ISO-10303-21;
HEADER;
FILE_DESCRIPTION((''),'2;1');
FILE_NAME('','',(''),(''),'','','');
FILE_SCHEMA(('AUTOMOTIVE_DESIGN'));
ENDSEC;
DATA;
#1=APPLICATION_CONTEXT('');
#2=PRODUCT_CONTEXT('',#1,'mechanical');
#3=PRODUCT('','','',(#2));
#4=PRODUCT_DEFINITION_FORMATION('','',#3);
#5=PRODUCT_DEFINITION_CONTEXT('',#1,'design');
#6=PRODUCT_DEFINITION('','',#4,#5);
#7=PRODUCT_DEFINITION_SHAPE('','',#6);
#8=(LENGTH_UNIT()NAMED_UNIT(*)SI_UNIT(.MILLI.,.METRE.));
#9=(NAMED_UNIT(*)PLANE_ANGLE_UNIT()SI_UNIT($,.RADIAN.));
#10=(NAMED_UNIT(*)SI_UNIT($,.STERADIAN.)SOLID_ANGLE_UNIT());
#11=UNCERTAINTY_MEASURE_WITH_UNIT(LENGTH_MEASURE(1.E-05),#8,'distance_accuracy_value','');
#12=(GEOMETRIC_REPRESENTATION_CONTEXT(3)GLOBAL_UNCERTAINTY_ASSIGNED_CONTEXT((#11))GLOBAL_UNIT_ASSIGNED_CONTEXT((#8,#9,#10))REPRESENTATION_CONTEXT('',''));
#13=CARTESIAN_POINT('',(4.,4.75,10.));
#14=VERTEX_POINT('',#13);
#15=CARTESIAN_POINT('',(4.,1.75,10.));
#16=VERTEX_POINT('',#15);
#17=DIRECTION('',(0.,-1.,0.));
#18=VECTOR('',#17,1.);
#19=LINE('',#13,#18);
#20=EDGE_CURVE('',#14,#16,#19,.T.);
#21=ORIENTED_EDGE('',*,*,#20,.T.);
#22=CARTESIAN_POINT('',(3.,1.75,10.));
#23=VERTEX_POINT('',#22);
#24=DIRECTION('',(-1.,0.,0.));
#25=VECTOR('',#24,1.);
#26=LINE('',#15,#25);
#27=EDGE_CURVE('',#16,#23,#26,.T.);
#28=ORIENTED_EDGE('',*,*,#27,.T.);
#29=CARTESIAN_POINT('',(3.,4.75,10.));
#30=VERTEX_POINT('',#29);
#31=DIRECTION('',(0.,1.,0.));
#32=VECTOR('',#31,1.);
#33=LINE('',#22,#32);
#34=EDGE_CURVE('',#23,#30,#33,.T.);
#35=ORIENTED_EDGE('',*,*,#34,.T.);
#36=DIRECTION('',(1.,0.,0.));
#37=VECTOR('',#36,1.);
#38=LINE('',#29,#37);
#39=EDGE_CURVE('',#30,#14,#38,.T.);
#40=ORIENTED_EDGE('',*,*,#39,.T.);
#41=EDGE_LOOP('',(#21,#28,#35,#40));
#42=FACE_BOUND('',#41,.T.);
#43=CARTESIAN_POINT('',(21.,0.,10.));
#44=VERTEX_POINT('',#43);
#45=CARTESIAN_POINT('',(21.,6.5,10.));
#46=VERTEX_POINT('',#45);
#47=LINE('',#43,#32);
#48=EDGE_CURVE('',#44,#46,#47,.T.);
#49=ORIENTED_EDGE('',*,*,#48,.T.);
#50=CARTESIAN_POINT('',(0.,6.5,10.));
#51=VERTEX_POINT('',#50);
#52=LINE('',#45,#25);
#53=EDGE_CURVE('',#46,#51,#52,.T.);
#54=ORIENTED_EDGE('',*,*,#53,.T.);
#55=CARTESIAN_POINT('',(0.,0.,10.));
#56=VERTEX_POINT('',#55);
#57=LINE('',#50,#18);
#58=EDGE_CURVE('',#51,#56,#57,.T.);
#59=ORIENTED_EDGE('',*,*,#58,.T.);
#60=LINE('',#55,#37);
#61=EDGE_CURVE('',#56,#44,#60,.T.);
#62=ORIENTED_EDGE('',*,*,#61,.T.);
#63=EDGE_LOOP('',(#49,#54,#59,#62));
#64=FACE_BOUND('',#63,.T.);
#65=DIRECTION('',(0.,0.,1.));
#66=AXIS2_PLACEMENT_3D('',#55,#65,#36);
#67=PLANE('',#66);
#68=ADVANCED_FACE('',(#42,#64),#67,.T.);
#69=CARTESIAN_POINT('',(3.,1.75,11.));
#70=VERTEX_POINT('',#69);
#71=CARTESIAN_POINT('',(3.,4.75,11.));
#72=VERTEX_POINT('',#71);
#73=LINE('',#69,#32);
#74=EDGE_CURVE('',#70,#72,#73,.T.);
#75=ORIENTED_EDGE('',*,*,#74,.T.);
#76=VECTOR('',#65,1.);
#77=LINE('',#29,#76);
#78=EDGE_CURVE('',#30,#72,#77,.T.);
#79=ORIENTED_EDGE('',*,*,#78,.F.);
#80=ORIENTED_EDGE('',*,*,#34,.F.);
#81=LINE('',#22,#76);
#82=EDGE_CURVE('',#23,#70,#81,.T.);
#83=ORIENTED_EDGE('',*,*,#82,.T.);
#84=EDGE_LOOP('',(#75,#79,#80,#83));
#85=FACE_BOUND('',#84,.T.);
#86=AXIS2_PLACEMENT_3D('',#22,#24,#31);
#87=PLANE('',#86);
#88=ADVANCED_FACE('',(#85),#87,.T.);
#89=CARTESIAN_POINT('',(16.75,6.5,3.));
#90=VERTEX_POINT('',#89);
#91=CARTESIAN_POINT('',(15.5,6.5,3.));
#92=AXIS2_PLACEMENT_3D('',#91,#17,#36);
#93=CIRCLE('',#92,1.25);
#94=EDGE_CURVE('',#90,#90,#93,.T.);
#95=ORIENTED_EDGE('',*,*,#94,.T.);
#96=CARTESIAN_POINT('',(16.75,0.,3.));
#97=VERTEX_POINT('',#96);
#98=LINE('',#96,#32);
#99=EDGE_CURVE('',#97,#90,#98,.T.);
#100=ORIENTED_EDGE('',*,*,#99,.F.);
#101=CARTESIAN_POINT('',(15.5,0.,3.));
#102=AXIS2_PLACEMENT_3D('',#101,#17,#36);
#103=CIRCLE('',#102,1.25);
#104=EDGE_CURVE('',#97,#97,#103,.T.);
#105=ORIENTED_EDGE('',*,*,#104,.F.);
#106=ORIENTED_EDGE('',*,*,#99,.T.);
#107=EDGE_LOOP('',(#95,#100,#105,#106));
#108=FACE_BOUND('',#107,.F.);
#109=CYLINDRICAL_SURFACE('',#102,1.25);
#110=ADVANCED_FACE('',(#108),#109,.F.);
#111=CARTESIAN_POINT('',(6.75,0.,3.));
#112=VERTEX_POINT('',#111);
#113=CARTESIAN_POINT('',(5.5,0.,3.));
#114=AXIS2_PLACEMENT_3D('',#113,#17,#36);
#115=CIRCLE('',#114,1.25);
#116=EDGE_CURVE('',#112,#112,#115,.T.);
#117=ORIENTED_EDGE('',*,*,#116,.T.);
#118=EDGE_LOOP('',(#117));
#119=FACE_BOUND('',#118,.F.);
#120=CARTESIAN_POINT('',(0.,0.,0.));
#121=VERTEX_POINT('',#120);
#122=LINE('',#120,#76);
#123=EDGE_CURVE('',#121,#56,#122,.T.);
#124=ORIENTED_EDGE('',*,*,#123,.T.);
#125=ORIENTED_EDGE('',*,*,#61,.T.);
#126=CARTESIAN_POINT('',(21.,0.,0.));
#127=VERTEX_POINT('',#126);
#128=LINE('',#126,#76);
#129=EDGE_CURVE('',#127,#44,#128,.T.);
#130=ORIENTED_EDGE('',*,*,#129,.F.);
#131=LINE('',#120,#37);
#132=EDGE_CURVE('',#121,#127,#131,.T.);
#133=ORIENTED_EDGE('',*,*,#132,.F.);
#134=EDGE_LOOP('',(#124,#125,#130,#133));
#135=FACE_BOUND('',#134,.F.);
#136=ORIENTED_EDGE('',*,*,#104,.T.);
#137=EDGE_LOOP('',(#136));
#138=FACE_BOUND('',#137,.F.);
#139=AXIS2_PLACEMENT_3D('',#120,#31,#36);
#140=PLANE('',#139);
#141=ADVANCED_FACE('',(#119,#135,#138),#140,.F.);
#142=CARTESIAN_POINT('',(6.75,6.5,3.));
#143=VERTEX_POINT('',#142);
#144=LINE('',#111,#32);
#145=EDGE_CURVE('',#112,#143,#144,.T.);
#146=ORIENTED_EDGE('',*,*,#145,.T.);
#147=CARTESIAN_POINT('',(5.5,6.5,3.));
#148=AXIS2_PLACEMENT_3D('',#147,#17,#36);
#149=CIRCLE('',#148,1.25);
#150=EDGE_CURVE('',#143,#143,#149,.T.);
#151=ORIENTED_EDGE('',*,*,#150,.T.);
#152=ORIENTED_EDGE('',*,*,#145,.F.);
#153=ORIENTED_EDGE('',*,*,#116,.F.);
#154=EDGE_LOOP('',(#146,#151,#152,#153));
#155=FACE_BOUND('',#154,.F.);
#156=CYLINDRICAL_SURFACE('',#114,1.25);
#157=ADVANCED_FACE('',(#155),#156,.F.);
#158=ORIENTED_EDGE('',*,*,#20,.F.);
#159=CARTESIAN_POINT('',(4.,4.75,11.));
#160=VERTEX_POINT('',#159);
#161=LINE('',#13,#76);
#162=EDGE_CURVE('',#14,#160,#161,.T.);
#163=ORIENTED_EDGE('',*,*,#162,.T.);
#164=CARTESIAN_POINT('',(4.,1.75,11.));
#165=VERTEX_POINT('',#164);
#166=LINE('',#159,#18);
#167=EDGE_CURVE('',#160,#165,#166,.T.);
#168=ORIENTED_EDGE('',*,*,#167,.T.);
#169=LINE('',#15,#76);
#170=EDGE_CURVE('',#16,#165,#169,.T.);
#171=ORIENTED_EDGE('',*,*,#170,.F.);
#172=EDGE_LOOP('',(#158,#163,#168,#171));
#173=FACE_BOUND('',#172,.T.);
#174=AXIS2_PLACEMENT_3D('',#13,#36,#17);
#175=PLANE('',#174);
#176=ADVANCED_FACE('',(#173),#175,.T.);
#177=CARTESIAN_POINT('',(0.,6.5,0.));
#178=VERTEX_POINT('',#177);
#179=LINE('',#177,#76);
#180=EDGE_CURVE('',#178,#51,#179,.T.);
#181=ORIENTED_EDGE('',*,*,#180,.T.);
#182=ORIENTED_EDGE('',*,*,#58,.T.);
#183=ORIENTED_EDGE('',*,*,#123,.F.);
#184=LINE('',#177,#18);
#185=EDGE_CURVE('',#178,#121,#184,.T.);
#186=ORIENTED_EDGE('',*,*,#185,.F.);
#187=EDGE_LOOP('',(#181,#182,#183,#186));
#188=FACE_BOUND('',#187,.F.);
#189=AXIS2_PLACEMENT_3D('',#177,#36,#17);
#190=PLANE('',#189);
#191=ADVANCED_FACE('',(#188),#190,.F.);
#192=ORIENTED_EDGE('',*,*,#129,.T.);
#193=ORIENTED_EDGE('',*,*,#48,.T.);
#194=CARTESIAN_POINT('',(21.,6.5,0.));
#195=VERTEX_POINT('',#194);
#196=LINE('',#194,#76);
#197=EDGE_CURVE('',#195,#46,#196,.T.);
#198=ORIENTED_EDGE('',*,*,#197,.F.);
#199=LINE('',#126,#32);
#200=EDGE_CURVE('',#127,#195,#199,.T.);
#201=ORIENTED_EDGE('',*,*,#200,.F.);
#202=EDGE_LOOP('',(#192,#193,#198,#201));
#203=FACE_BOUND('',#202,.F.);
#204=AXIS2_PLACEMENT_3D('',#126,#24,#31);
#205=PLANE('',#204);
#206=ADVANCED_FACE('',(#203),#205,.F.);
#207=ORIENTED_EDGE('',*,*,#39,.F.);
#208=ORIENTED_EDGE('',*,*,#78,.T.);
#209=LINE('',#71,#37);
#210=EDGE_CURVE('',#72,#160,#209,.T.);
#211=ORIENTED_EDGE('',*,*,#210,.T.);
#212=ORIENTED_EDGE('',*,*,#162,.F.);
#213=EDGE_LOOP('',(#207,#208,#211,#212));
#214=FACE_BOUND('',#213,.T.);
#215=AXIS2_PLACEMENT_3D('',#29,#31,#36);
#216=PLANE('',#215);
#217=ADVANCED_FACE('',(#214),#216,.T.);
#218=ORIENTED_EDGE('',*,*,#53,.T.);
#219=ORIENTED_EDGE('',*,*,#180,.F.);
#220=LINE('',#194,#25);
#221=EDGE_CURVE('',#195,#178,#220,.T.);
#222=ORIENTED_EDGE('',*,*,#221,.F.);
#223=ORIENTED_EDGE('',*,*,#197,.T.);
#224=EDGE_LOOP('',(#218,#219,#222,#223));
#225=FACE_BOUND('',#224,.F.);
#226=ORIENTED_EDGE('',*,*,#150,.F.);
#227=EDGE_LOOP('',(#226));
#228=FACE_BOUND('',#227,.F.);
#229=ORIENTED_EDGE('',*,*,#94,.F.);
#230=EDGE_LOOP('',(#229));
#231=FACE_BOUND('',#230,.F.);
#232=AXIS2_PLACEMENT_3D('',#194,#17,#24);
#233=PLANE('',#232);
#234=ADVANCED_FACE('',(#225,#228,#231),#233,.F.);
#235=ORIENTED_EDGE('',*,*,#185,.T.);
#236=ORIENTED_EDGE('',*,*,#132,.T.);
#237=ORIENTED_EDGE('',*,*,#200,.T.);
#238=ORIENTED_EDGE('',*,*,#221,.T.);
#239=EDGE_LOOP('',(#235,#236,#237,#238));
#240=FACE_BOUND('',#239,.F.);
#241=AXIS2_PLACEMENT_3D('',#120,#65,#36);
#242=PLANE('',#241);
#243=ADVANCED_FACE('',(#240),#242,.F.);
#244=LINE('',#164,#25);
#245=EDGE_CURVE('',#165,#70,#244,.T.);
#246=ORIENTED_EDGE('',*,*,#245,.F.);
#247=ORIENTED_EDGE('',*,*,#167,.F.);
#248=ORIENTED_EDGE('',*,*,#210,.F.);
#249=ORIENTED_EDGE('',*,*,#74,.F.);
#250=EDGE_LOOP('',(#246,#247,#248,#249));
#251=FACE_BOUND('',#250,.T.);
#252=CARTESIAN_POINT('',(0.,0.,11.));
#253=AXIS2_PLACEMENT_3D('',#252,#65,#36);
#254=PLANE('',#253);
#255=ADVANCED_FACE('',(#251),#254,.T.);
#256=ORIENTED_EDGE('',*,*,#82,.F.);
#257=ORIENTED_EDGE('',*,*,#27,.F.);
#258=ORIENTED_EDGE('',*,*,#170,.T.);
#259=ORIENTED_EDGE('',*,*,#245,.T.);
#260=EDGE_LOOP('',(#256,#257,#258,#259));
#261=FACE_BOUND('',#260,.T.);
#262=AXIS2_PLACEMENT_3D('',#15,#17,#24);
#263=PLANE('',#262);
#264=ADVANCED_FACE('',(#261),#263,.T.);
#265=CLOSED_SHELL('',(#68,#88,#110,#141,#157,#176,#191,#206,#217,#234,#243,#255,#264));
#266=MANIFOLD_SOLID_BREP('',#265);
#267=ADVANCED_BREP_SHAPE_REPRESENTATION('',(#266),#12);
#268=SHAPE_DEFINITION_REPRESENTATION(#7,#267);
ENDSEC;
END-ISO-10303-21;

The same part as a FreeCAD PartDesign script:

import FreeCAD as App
import Part
import Sketcher
Q = App.Units.Quantity

doc = App.newDocument("Part")
body = doc.addObject("PartDesign::Body", "Body")

# Sketch on XY plane
sketch1 = body.newObject("Sketcher::SketchObject", "Sketch")
sketch1.AttachmentSupport = (doc.getObject("XY_Plane"), [""])
sketch1.MapMode = "FlatFace"
sketch1.addGeometry(Part.LineSegment(App.Vector(0, 6, 0), App.Vector(0, 0, 0)), False)
sketch1.addGeometry(Part.LineSegment(App.Vector(0, 0, 0), App.Vector(21, 0, 0)), False)
sketch1.addGeometry(Part.LineSegment(App.Vector(21, 0, 0), App.Vector(21, 6, 0)), False)
sketch1.addGeometry(Part.LineSegment(App.Vector(21, 6, 0), App.Vector(0, 6, 0)), False)
sketch1.addConstraint(Sketcher.Constraint("Coincident", 0, 2, 1, 1))
sketch1.addConstraint(Sketcher.Constraint("Coincident", 1, 2, 2, 1))
sketch1.addConstraint(Sketcher.Constraint("Coincident", 2, 2, 3, 1))
sketch1.addConstraint(Sketcher.Constraint("Coincident", 3, 2, 0, 1))
sketch1.addConstraint(Sketcher.Constraint("Vertical", 0))
sketch1.addConstraint(Sketcher.Constraint("Horizontal", 1))
sketch1.addConstraint(Sketcher.Constraint("Vertical", 2))
sketch1.addConstraint(Sketcher.Constraint("Horizontal", 3))
sketch1.addConstraint(Sketcher.Constraint("Coincident", 0, 2, -1, 1))
sketch1.addConstraint(Sketcher.Constraint("DistanceX", 1, 1, 1, 2, Q("21 mm")))
sketch1.addConstraint(Sketcher.Constraint("DistanceY", 0, 2, 0, 1, Q("6.5 mm")))
pad1 = body.newObject("PartDesign::Pad", "Pad")
pad1.Profile = sketch1
pad1.Length = 10

# Sketch on XY plane
sketch2 = body.newObject("Sketcher::SketchObject", "Sketch001")
sketch2.AttachmentSupport = (doc.getObject("XY_Plane"), [""])
sketch2.MapMode = "FlatFace"
sketch2.AttachmentOffset = App.Placement(App.Vector(0, 0, 10), App.Rotation())
sketch2.addGeometry(Part.LineSegment(App.Vector(4, 4.8, 0), App.Vector(3, 4.8, 0)), False)
sketch2.addGeometry(Part.LineSegment(App.Vector(3, 4.8, 0), App.Vector(3, 1.8, 0)), False)
sketch2.addGeometry(Part.LineSegment(App.Vector(3, 1.8, 0), App.Vector(4, 1.8, 0)), False)
sketch2.addGeometry(Part.LineSegment(App.Vector(4, 1.8, 0), App.Vector(4, 4.8, 0)), False)
sketch2.addConstraint(Sketcher.Constraint("Coincident", 0, 2, 1, 1))
sketch2.addConstraint(Sketcher.Constraint("Coincident", 1, 2, 2, 1))
sketch2.addConstraint(Sketcher.Constraint("Coincident", 2, 2, 3, 1))
sketch2.addConstraint(Sketcher.Constraint("Coincident", 3, 2, 0, 1))
sketch2.addConstraint(Sketcher.Constraint("Horizontal", 0))
sketch2.addConstraint(Sketcher.Constraint("Vertical", 1))
sketch2.addConstraint(Sketcher.Constraint("Horizontal", 2))
sketch2.addConstraint(Sketcher.Constraint("Vertical", 3))
sketch2.addConstraint(Sketcher.Constraint("DistanceX", 0, 2, 0, 1, Q("1 mm")))
sketch2.addConstraint(Sketcher.Constraint("DistanceY", 1, 2, 1, 1, Q("3 mm")))
sketch2.addConstraint(Sketcher.Constraint("DistanceX", -1, 1, 0, 2, Q("3 mm")))
sketch2.addConstraint(Sketcher.Constraint("DistanceY", -1, 1, 0, 2, Q("4.75 mm")))
pad2 = body.newObject("PartDesign::Pad", "Pad001")
pad2.Profile = sketch2
pad2.Length = 1

# Sketch on XZ plane
sketch3 = body.newObject("Sketcher::SketchObject", "Sketch002")
sketch3.AttachmentSupport = (doc.getObject("XZ_Plane"), [""])
sketch3.MapMode = "FlatFace"
sketch3.addGeometry(Part.Circle(App.Vector(5.5, 3, 0), App.Vector(0, 0, 1), 1.2), False)
sketch3.addGeometry(Part.Circle(App.Vector(15.5, 3, 0), App.Vector(0, 0, 1), 1.2), False)
sketch3.addConstraint(Sketcher.Constraint("Equal", 0, 1))
sketch3.addConstraint(Sketcher.Constraint("Horizontal", 0, 3, 1, 3))
sketch3.addConstraint(Sketcher.Constraint("Diameter", 0, Q("2.5 mm")))
sketch3.addConstraint(Sketcher.Constraint("DistanceY", -1, 1, 0, 3, Q("3 mm")))
sketch3.addConstraint(Sketcher.Constraint("DistanceX", 0, 3, 1, 3, Q("10 mm")))
sketch3.addConstraint(Sketcher.Constraint("DistanceX", -1, 1, 0, 3, Q("5.5 mm")))
pocket1 = body.newObject("PartDesign::Pocket", "Pocket")
pocket1.Profile = sketch3
pocket1.Type = "ThroughAll"

doc.recompute()
